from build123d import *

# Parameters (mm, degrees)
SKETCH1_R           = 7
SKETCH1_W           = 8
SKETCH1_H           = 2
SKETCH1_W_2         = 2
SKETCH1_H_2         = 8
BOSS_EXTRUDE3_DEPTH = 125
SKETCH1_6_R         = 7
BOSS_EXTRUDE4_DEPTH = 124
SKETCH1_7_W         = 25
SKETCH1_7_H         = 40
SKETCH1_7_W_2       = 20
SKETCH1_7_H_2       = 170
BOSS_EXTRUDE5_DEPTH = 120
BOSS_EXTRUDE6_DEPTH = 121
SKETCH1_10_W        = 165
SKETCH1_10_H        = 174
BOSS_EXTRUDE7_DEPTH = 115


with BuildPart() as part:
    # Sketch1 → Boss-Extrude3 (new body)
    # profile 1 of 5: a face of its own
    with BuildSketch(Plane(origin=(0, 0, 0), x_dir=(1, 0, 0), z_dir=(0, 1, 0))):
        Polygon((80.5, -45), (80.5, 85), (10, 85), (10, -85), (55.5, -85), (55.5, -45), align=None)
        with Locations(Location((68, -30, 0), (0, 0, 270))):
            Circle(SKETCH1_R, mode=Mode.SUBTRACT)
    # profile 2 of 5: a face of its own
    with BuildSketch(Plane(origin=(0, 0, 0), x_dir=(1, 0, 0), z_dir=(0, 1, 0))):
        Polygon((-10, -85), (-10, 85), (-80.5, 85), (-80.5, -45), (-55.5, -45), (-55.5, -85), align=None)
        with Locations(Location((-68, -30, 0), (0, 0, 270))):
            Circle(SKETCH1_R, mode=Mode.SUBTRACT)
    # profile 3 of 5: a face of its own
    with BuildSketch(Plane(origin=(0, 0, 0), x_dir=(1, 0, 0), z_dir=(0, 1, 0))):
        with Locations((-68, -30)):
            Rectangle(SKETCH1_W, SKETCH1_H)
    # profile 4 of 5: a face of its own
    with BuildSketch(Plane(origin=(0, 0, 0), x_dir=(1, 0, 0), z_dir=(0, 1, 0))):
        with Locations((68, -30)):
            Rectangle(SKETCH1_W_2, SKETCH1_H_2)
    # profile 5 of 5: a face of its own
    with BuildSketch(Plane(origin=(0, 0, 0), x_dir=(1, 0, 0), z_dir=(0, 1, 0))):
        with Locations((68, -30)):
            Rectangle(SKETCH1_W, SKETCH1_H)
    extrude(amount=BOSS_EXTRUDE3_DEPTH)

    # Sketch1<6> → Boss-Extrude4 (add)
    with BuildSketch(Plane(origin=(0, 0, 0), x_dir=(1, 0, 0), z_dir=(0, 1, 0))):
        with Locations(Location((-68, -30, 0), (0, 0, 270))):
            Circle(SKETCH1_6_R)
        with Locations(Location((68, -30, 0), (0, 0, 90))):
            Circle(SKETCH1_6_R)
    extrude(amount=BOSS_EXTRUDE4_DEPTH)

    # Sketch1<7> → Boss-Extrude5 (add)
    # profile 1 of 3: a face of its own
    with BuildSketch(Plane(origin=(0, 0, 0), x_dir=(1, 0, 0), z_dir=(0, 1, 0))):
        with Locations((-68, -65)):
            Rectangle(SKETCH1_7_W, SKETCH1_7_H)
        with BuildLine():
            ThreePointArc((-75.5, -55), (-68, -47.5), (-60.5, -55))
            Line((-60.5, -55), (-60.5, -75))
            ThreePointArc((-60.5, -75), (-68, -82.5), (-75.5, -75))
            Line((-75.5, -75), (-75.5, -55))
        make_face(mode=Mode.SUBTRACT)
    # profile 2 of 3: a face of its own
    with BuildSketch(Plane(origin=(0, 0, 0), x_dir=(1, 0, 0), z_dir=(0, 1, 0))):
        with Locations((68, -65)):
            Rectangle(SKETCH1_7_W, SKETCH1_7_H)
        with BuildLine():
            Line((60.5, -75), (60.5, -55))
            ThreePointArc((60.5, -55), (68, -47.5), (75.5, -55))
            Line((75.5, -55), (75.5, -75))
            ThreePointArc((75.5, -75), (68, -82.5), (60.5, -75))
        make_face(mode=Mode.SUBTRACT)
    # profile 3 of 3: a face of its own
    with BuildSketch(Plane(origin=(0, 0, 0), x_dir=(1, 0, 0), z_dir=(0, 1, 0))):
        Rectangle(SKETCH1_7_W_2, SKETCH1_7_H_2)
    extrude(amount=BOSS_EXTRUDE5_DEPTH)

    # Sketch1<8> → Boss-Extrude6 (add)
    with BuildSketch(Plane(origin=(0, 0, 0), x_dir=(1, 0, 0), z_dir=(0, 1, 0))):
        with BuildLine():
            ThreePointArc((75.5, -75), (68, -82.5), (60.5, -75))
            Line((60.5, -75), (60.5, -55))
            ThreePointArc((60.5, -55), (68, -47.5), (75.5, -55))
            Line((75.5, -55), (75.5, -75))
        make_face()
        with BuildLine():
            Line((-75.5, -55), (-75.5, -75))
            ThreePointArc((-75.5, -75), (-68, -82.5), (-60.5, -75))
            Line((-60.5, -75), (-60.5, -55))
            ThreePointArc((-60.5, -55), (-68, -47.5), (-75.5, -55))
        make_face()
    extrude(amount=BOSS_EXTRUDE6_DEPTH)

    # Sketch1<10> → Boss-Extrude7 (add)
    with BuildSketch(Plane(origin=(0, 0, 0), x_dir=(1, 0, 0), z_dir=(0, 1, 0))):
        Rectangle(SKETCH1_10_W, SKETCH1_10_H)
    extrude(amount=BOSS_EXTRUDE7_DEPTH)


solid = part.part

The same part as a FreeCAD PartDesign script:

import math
import FreeCAD as App
import Part
import Sketcher

doc = App.newDocument("Part")
body = doc.addObject("PartDesign::Body", "Body")
body.AllowCompound = True

sketch1 = body.newObject("Sketcher::SketchObject", "Sketch")
sketch1.AttachmentSupport = (doc.getObject("XZ_Plane"), [""])
sketch1.MapMode = "FlatFace"
sketch1.addGeometry(Part.LineSegment(App.Vector(80.5, 45, 0), App.Vector(80.5, -85, 0)), False)
sketch1.addGeometry(Part.LineSegment(App.Vector(80.5, -85, 0), App.Vector(10, -85, 0)), False)
sketch1.addGeometry(Part.LineSegment(App.Vector(10, -85, 0), App.Vector(10, 85, 0)), False)
sketch1.addGeometry(Part.LineSegment(App.Vector(10, 85, 0), App.Vector(55.5, 85, 0)), False)
sketch1.addGeometry(Part.LineSegment(App.Vector(55.5, 85, 0), App.Vector(55.5, 45, 0)), False)
sketch1.addGeometry(Part.LineSegment(App.Vector(55.5, 45, 0), App.Vector(80.5, 45, 0)), False)
sketch1.addGeometry(Part.Circle(App.Vector(68, 30, 0), App.Vector(0, 0, 1), 7), False)
sketch1.addGeometry(Part.LineSegment(App.Vector(-10, 85, 0), App.Vector(-10, -85, 0)), False)
sketch1.addGeometry(Part.LineSegment(App.Vector(-10, -85, 0), App.Vector(-80.5, -85, 0)), False)
sketch1.addGeometry(Part.LineSegment(App.Vector(-80.5, -85, 0), App.Vector(-80.5, 45, 0)), False)
sketch1.addGeometry(Part.LineSegment(App.Vector(-80.5, 45, 0), App.Vector(-55.5, 45, 0)), False)
sketch1.addGeometry(Part.LineSegment(App.Vector(-55.5, 45, 0), App.Vector(-55.5, 85, 0)), False)
sketch1.addGeometry(Part.LineSegment(App.Vector(-55.5, 85, 0), App.Vector(-10, 85, 0)), False)
sketch1.addGeometry(Part.Circle(App.Vector(-68, 30, 0), App.Vector(0, 0, 1), 7), False)
sketch1.addGeometry(Part.LineSegment(App.Vector(-72, 29, 0), App.Vector(-72, 31, 0)), False)
sketch1.addGeometry(Part.LineSegment(App.Vector(-72, 31, 0), App.Vector(-64, 31, 0)), False)
sketch1.addGeometry(Part.LineSegment(App.Vector(-64, 31, 0), App.Vector(-64, 29, 0)), False)
sketch1.addGeometry(Part.LineSegment(App.Vector(-64, 29, 0), App.Vector(-72, 29, 0)), False)
sketch1.addGeometry(Part.LineSegment(App.Vector(67, 31, 0), App.Vector(67, 34, 0)), False)
sketch1.addGeometry(Part.LineSegment(App.Vector(67, 34, 0), App.Vector(69, 34, 0)), False)
sketch1.addGeometry(Part.LineSegment(App.Vector(69, 34, 0), App.Vector(69, 31, 0)), False)
sketch1.addGeometry(Part.LineSegment(App.Vector(69, 31, 0), App.Vector(72, 31, 0)), False)
sketch1.addGeometry(Part.LineSegment(App.Vector(72, 31, 0), App.Vector(72, 29, 0)), False)
sketch1.addGeometry(Part.LineSegment(App.Vector(72, 29, 0), App.Vector(69, 29, 0)), False)
sketch1.addGeometry(Part.LineSegment(App.Vector(69, 29, 0), App.Vector(69, 26, 0)), False)
sketch1.addGeometry(Part.LineSegment(App.Vector(69, 26, 0), App.Vector(67, 26, 0)), False)
sketch1.addGeometry(Part.LineSegment(App.Vector(67, 26, 0), App.Vector(67, 29, 0)), False)
sketch1.addGeometry(Part.LineSegment(App.Vector(67, 29, 0), App.Vector(64, 29, 0)), False)
sketch1.addGeometry(Part.LineSegment(App.Vector(64, 29, 0), App.Vector(64, 31, 0)), False)
sketch1.addGeometry(Part.LineSegment(App.Vector(64, 31, 0), App.Vector(67, 31, 0)), False)
sketch1.addConstraint(Sketcher.Constraint("Coincident", 0, 2, 1, 1))
sketch1.addConstraint(Sketcher.Constraint("Coincident", 1, 2, 2, 1))
sketch1.addConstraint(Sketcher.Constraint("Coincident", 2, 2, 3, 1))
sketch1.addConstraint(Sketcher.Constraint("Coincident", 3, 2, 4, 1))
sketch1.addConstraint(Sketcher.Constraint("Coincident", 4, 2, 5, 1))
sketch1.addConstraint(Sketcher.Constraint("Coincident", 5, 2, 0, 1))
sketch1.addConstraint(Sketcher.Constraint("Coincident", 7, 2, 8, 1))
sketch1.addConstraint(Sketcher.Constraint("Coincident", 8, 2, 9, 1))
sketch1.addConstraint(Sketcher.Constraint("Coincident", 9, 2, 10, 1))
sketch1.addConstraint(Sketcher.Constraint("Coincident", 10, 2, 11, 1))
sketch1.addConstraint(Sketcher.Constraint("Coincident", 11, 2, 12, 1))
sketch1.addConstraint(Sketcher.Constraint("Coincident", 12, 2, 7, 1))
sketch1.addConstraint(Sketcher.Constraint("Coincident", 14, 2, 15, 1))
sketch1.addConstraint(Sketcher.Constraint("Coincident", 15, 2, 16, 1))
sketch1.addConstraint(Sketcher.Constraint("Coincident", 16, 2, 17, 1))
sketch1.addConstraint(Sketcher.Constraint("Coincident", 17, 2, 14, 1))
sketch1.addConstraint(Sketcher.Constraint("Coincident", 18, 2, 19, 1))
sketch1.addConstraint(Sketcher.Constraint("Coincident", 19, 2, 20, 1))
sketch1.addConstraint(Sketcher.Constraint("Coincident", 20, 2, 21, 1))
sketch1.addConstraint(Sketcher.Constraint("Coincident", 21, 2, 22, 1))
sketch1.addConstraint(Sketcher.Constraint("Coincident", 22, 2, 23, 1))
sketch1.addConstraint(Sketcher.Constraint("Coincident", 23, 2, 24, 1))
sketch1.addConstraint(Sketcher.Constraint("Coincident", 24, 2, 25, 1))
sketch1.addConstraint(Sketcher.Constraint("Coincident", 25, 2, 26, 1))
sketch1.addConstraint(Sketcher.Constraint("Coincident", 26, 2, 27, 1))
sketch1.addConstraint(Sketcher.Constraint("Coincident", 27, 2, 28, 1))
sketch1.addConstraint(Sketcher.Constraint("Coincident", 28, 2, 29, 1))
sketch1.addConstraint(Sketcher.Constraint("Coincident", 29, 2, 18, 1))
sketch1.addConstraint(Sketcher.Constraint("Vertical", 0))
sketch1.addConstraint(Sketcher.Constraint("Horizontal", 1))
sketch1.addConstraint(Sketcher.Constraint("Vertical", 2))
sketch1.addConstraint(Sketcher.Constraint("Horizontal", 3))
sketch1.addConstraint(Sketcher.Constraint("Vertical", 4))
sketch1.addConstraint(Sketcher.Constraint("Horizontal", 5))
sketch1.addConstraint(Sketcher.Constraint("Vertical", 7))
sketch1.addConstraint(Sketcher.Constraint("Horizontal", 8))
sketch1.addConstraint(Sketcher.Constraint("Vertical", 9))
sketch1.addConstraint(Sketcher.Constraint("Horizontal", 10))
sketch1.addConstraint(Sketcher.Constraint("Vertical", 11))
sketch1.addConstraint(Sketcher.Constraint("Horizontal", 12))
sketch1.addConstraint(Sketcher.Constraint("Vertical", 14))
sketch1.addConstraint(Sketcher.Constraint("Horizontal", 15))
sketch1.addConstraint(Sketcher.Constraint("Vertical", 16))
sketch1.addConstraint(Sketcher.Constraint("Horizontal", 17))
sketch1.addConstraint(Sketcher.Constraint("Vertical", 18))
sketch1.addConstraint(Sketcher.Constraint("Horizontal", 19))
sketch1.addConstraint(Sketcher.Constraint("Vertical", 20))
sketch1.addConstraint(Sketcher.Constraint("Horizontal", 21))
sketch1.addConstraint(Sketcher.Constraint("Vertical", 22))
sketch1.addConstraint(Sketcher.Constraint("Horizontal", 23))
sketch1.addConstraint(Sketcher.Constraint("Vertical", 24))
sketch1.addConstraint(Sketcher.Constraint("Horizontal", 25))
sketch1.addConstraint(Sketcher.Constraint("Vertical", 26))
sketch1.addConstraint(Sketcher.Constraint("Horizontal", 27))
sketch1.addConstraint(Sketcher.Constraint("Vertical", 28))
sketch1.addConstraint(Sketcher.Constraint("Horizontal", 29))
sketch1.addConstraint(Sketcher.Constraint("Equal", 6, 13))
sketch1.addConstraint(Sketcher.Constraint("Symmetric", 2, 2, 7, 2, -1, 1))
sketch1.addConstraint(Sketcher.Constraint("Symmetric", 6, 3, 13, 3, -2))
sketch1.addConstraint(Sketcher.Constraint("Symmetric", 0, 2, 8, 2, -2))
sketch1.addConstraint(Sketcher.Constraint("Symmetric", 4, 2, 10, 2, -2))
sketch1.addConstraint(Sketcher.Constraint("Symmetric", 14, 2, 21, 2, -2))
sketch1.addConstraint(Sketcher.Constraint("Symmetric", 16, 2, 27, 2, -2))
sketch1.addConstraint(Sketcher.Constraint("Horizontal", 3, 2, 11, 2))
sketch1.addConstraint(Sketcher.Constraint("Horizontal", 17, 2, 22, 2))
sketch1.addConstraint(Sketcher.Constraint("Horizontal", 21, 2, 28, 2))
sketch1.addConstraint(Sketcher.Constraint("Vertical", 20, 2, 23, 2))
sketch1.addConstraint(Sketcher.Constraint("Vertical", 18, 2, 25, 2))
sketch1.addConstraint(Sketcher.Constraint("Equal", 23, 27))
sketch1.addConstraint(Sketcher.Constraint("Equal", 25, 14))
sketch1.addConstraint(Sketcher.Constraint("Equal", 29, 18))
sketch1.addConstraint(Sketcher.Constraint("Equal", 20, 24))
sketch1.addConstraint(Sketcher.Constraint("Diameter", 6, 14.0))
sketch1.addConstraint(Sketcher.Constraint("DistanceX", 5, 1, 5, 2, 25.0))
sketch1.addConstraint(Sketcher.Constraint("DistanceX", 15, 1, 15, 2, 8.0))
sketch1.addConstraint(Sketcher.Constraint("DistanceX", 19, 1, 19, 2, 2.0))
sketch1.addConstraint(Sketcher.Constraint("DistanceY", 0, 2, 0, 1, 130.0))
sketch1.addConstraint(Sketcher.Constraint("DistanceY", 2, 1, 2, 2, 170.0))
sketch1.addConstraint(Sketcher.Constraint("DistanceX", 1, 2, 1, 1, 70.5))
sketch1.addConstraint(Sketcher.Constraint("DistanceX", -1, 1, 6, 3, 68.0))
sketch1.addConstraint(Sketcher.Constraint("DistanceY", -1, 1, 6, 3, 30.0))
sketch1.addConstraint(Sketcher.Constraint("DistanceX", -1, 1, 1, 2, 10.0))
sketch1.addConstraint(Sketcher.Constraint("DistanceX", 14, 2, -1, 1, 72.0))
sketch1.addConstraint(Sketcher.Constraint("DistanceY", -1, 1, 14, 2, 31.0))
pad1 = body.newObject("PartDesign::Pad", "Pad")
pad1.Profile = sketch1
pad1.Length = 125
pad1.Reversed = True

sketch2 = body.newObject("Sketcher::SketchObject", "Sketch001")
sketch2.AttachmentSupport = (doc.getObject("XZ_Plane"), [""])
sketch2.MapMode = "FlatFace"
sketch2.addGeometry(Part.Circle(App.Vector(-68, 30, 0), App.Vector(0, 0, 1), 7), False)
sketch2.addGeometry(Part.Circle(App.Vector(68, 30, 0), App.Vector(0, 0, 1), 7), False)
sketch2.addConstraint(Sketcher.Constraint("Equal", 0, 1))
sketch2.addConstraint(Sketcher.Constraint("Symmetric", 0, 3, 1, 3, -2))
sketch2.addConstraint(Sketcher.Constraint("Diameter", 0, 14.0))
sketch2.addConstraint(Sketcher.Constraint("DistanceX", 0, 3, -1, 1, 68.0))
sketch2.addConstraint(Sketcher.Constraint("DistanceY", -1, 1, 0, 3, 30.0))
pad2 = body.newObject("PartDesign::Pad", "Pad001")
pad2.Profile = sketch2
pad2.Length = 124
pad2.Reversed = True

sketch3 = body.newObject("Sketcher::SketchObject", "Sketch002")
sketch3.AttachmentSupport = (doc.getObject("XZ_Plane"), [""])
sketch3.MapMode = "FlatFace"
sketch3.addGeometry(Part.LineSegment(App.Vector(-80, 45, 0), App.Vector(-80, 85, 0)), False)
sketch3.addGeometry(Part.LineSegment(App.Vector(-80, 85, 0), App.Vector(-56, 85, 0)), False)
sketch3.addGeometry(Part.LineSegment(App.Vector(-56, 85, 0), App.Vector(-56, 45, 0)), False)
sketch3.addGeometry(Part.LineSegment(App.Vector(-56, 45, 0), App.Vector(-80, 45, 0)), False)
sketch3.addGeometry(Part.LineSegment(App.Vector(-76, 75, 0), App.Vector(-76, 55, 0)), False)
sketch3.addGeometry(Part.ArcOfCircle(Part.Circle(App.Vector(-68, 55, 0), App.Vector(0, 0, 1), 8), math.radians(180), math.radians(360)), False)
sketch3.addGeometry(Part.LineSegment(App.Vector(-60, 55, 0), App.Vector(-60, 75, 0)), False)
sketch3.addGeometry(Part.ArcOfCircle(Part.Circle(App.Vector(-68, 75, 0), App.Vector(0, 0, 1), 8), math.radians(0), math.radians(180)), False)
sketch3.addGeometry(Part.LineSegment(App.Vector(56, 45, 0), App.Vector(56, 85, 0)), False)
sketch3.addGeometry(Part.LineSegment(App.Vector(56, 85, 0), App.Vector(80, 85, 0)), False)
sketch3.addGeometry(Part.LineSegment(App.Vector(80, 85, 0), App.Vector(80, 45, 0)), False)
sketch3.addGeometry(Part.LineSegment(App.Vector(80, 45, 0), App.Vector(56, 45, 0)), False)
sketch3.addGeometry(Part.ArcOfCircle(Part.Circle(App.Vector(68, 75, 0), App.Vector(0, 0, 1), 8), math.radians(0), math.radians(180)), False)
sketch3.addGeometry(Part.LineSegment(App.Vector(60, 75, 0), App.Vector(60, 55, 0)), False)
sketch3.addGeometry(Part.ArcOfCircle(Part.Circle(App.Vector(68, 55, 0), App.Vector(0, 0, 1), 8), math.radians(180), math.radians(360)), False)
sketch3.addGeometry(Part.LineSegment(App.Vector(76, 55, 0), App.Vector(76, 75, 0)), False)
sketch3.addGeometry(Part.LineSegment(App.Vector(-10, -85, 0), App.Vector(-10, 85, 0)), False)
sketch3.addGeometry(Part.LineSegment(App.Vector(-10, 85, 0), App.Vector(10, 85, 0)), False)
sketch3.addGeometry(Part.LineSegment(App.Vector(10, 85, 0), App.Vector(10, -85, 0)), False)
sketch3.addGeometry(Part.LineSegment(App.Vector(10, -85, 0), App.Vector(-10, -85, 0)), False)
sketch3.addConstraint(Sketcher.Constraint("Coincident", 0, 2, 1, 1))
sketch3.addConstraint(Sketcher.Constraint("Coincident", 1, 2, 2, 1))
sketch3.addConstraint(Sketcher.Constraint("Coincident", 2, 2, 3, 1))
sketch3.addConstraint(Sketcher.Constraint("Coincident", 3, 2, 0, 1))
sketch3.addConstraint(Sketcher.Constraint("Tangent", 4, 2, 5, 1))
sketch3.addConstraint(Sketcher.Constraint("Tangent", 5, 2, 6, 1))
sketch3.addConstraint(Sketcher.Constraint("Tangent", 6, 2, 7, 1))
sketch3.addConstraint(Sketcher.Constraint("Tangent", 7, 2, 4, 1))
sketch3.addConstraint(Sketcher.Constraint("Coincident", 8, 2, 9, 1))
sketch3.addConstraint(Sketcher.Constraint("Coincident", 9, 2, 10, 1))
sketch3.addConstraint(Sketcher.Constraint("Coincident", 10, 2, 11, 1))
sketch3.addConstraint(Sketcher.Constraint("Coincident", 11, 2, 8, 1))
sketch3.addConstraint(Sketcher.Constraint("Tangent", 12, 2, 13, 1))
sketch3.addConstraint(Sketcher.Constraint("Tangent", 13, 2, 14, 1))
sketch3.addConstraint(Sketcher.Constraint("Tangent", 14, 2, 15, 1))
sketch3.addConstraint(Sketcher.Constraint("Tangent", 15, 2, 12, 1))
sketch3.addConstraint(Sketcher.Constraint("Coincident", 16, 2, 17, 1))
sketch3.addConstraint(Sketcher.Constraint("Coincident", 17, 2, 18, 1))
sketch3.addConstraint(Sketcher.Constraint("Coincident", 18, 2, 19, 1))
sketch3.addConstraint(Sketcher.Constraint("Coincident", 19, 2, 16, 1))
sketch3.addConstraint(Sketcher.Constraint("Vertical", 0))
sketch3.addConstraint(Sketcher.Constraint("Horizontal", 1))
sketch3.addConstraint(Sketcher.Constraint("Vertical", 2))
sketch3.addConstraint(Sketcher.Constraint("Horizontal", 3))
sketch3.addConstraint(Sketcher.Constraint("Vertical", 4))
sketch3.addConstraint(Sketcher.Constraint("Vertical", 6))
sketch3.addConstraint(Sketcher.Constraint("Vertical", 8))
sketch3.addConstraint(Sketcher.Constraint("Horizontal", 9))
sketch3.addConstraint(Sketcher.Constraint("Vertical", 10))
sketch3.addConstraint(Sketcher.Constraint("Horizontal", 11))
sketch3.addConstraint(Sketcher.Constraint("Vertical", 13))
sketch3.addConstraint(Sketcher.Constraint("Vertical", 15))
sketch3.addConstraint(Sketcher.Constraint("Vertical", 16))
sketch3.addConstraint(Sketcher.Constraint("Horizontal", 17))
sketch3.addConstraint(Sketcher.Constraint("Vertical", 18))
sketch3.addConstraint(Sketcher.Constraint("Horizontal", 19))
sketch3.addConstraint(Sketcher.Constraint("Equal", 7, 12))
sketch3.addConstraint(Sketcher.Constraint("Symmetric", 16, 2, 18, 2, -1, 1))
sketch3.addConstraint(Sketcher.Constraint("Symmetric", 7, 3, 12, 3, -2))
sketch3.addConstraint(Sketcher.Constraint("Symmetric", 1, 2, 8, 2, -2))
sketch3.addConstraint(Sketcher.Constraint("Symmetric", 3, 2, 10, 2, -2))
sketch3.addConstraint(Sketcher.Constraint("Horizontal", 5, 3, 14, 3))
sketch3.addConstraint(Sketcher.Constraint("Horizontal", 9, 2, 16, 2))
sketch3.addConstraint(Sketcher.Constraint("Equal", 19, 4))
sketch3.addConstraint(Sketcher.Constraint("Radius", 5, 7.5))
sketch3.addConstraint(Sketcher.Constraint("DistanceX", 1, 1, 1, 2, 25.0))
sketch3.addConstraint(Sketcher.Constraint("DistanceX", 17, 1, 17, 2, 20.0))
sketch3.addConstraint(Sketcher.Constraint("DistanceY", 0, 1, 0, 2, 40.0))
sketch3.addConstraint(Sketcher.Constraint("DistanceY", 16, 1, 16, 2, 170.0))
sketch3.addConstraint(Sketcher.Constraint("DistanceX", 5, 3, -1, 1, 68.0))
sketch3.addConstraint(Sketcher.Constraint("DistanceY", -1, 1, 5, 3, 55.0))
sketch3.addConstraint(Sketcher.Constraint("DistanceX", 3, 2, 4, 2, 5.0))
pad3 = body.newObject("PartDesign::Pad", "Pad002")
pad3.Profile = sketch3
pad3.Length = 120
pad3.Reversed = True

sketch4 = body.newObject("Sketcher::SketchObject", "Sketch003")
sketch4.AttachmentSupport = (doc.getObject("XZ_Plane"), [""])
sketch4.MapMode = "FlatFace"
sketch4.addGeometry(Part.ArcOfCircle(Part.Circle(App.Vector(68, 75, 0), App.Vector(0, 0, 1), 8), math.radians(0), math.radians(180)), False)
sketch4.addGeometry(Part.LineSegment(App.Vector(76, 75, 0), App.Vector(76, 55, 0)), False)
sketch4.addGeometry(Part.ArcOfCircle(Part.Circle(App.Vector(68, 55, 0), App.Vector(0, 0, 1), 8), math.radians(180), math.radians(360)), False)
sketch4.addGeometry(Part.LineSegment(App.Vector(60, 55, 0), App.Vector(60, 75, 0)), False)
sketch4.addGeometry(Part.LineSegment(App.Vector(-76, 55, 0), App.Vector(-76, 75, 0)), False)
sketch4.addGeometry(Part.ArcOfCircle(Part.Circle(App.Vector(-68, 75, 0), App.Vector(0, 0, 1), 8), math.radians(0), math.radians(180)), False)
sketch4.addGeometry(Part.LineSegment(App.Vector(-60, 75, 0), App.Vector(-60, 55, 0)), False)
sketch4.addGeometry(Part.ArcOfCircle(Part.Circle(App.Vector(-68, 55, 0), App.Vector(0, 0, 1), 8), math.radians(180), math.radians(360)), False)
sketch4.addConstraint(Sketcher.Constraint("Tangent", 0, 1, 1, 1))
sketch4.addConstraint(Sketcher.Constraint("Tangent", 1, 2, 2, 2))
sketch4.addConstraint(Sketcher.Constraint("Tangent", 2, 1, 3, 1))
sketch4.addConstraint(Sketcher.Constraint("Tangent", 3, 2, 0, 2))
sketch4.addConstraint(Sketcher.Constraint("Tangent", 4, 2, 5, 2))
sketch4.addConstraint(Sketcher.Constraint("Tangent", 5, 1, 6, 1))
sketch4.addConstraint(Sketcher.Constraint("Tangent", 6, 2, 7, 2))
sketch4.addConstraint(Sketcher.Constraint("Tangent", 7, 1, 4, 1))
sketch4.addConstraint(Sketcher.Constraint("Vertical", 1))
sketch4.addConstraint(Sketcher.Constraint("Vertical", 3))
sketch4.addConstraint(Sketcher.Constraint("Vertical", 4))
sketch4.addConstraint(Sketcher.Constraint("Vertical", 6))
sketch4.addConstraint(Sketcher.Constraint("Equal", 2, 5))
sketch4.addConstraint(Sketcher.Constraint("Symmetric", 0, 3, 5, 3, -2))
sketch4.addConstraint(Sketcher.Constraint("Horizontal", 2, 3, 7, 3))
sketch4.addConstraint(Sketcher.Constraint("Radius", 0, 7.5))
sketch4.addConstraint(Sketcher.Constraint("DistanceY", 1, 2, 1, 1, 20.0))
sketch4.addConstraint(Sketcher.Constraint("DistanceX", -1, 1, 0, 3, 68.0))
sketch4.addConstraint(Sketcher.Constraint("DistanceY", -1, 1, 0, 3, 75.0))
pad4 = body.newObject("PartDesign::Pad", "Pad003")
pad4.Profile = sketch4
pad4.Length = 121
pad4.Reversed = True

sketch5 = body.newObject("Sketcher::SketchObject", "Sketch004")
sketch5.AttachmentSupport = (doc.getObject("XZ_Plane"), [""])
sketch5.MapMode = "FlatFace"
sketch5.addGeometry(Part.LineSegment(App.Vector(-82, -87, 0), App.Vector(-82, 87, 0)), False)
sketch5.addGeometry(Part.LineSegment(App.Vector(-82, 87, 0), App.Vector(82, 87, 0)), False)
sketch5.addGeometry(Part.LineSegment(App.Vector(82, 87, 0), App.Vector(82, -87, 0)), False)
sketch5.addGeometry(Part.LineSegment(App.Vector(82, -87, 0), App.Vector(-82, -87, 0)), False)
sketch5.addConstraint(Sketcher.Constraint("Coincident", 0, 2, 1, 1))
sketch5.addConstraint(Sketcher.Constraint("Coincident", 1, 2, 2, 1))
sketch5.addConstraint(Sketcher.Constraint("Coincident", 2, 2, 3, 1))
sketch5.addConstraint(Sketcher.Constraint("Coincident", 3, 2, 0, 1))
sketch5.addConstraint(Sketcher.Constraint("Vertical", 0))
sketch5.addConstraint(Sketcher.Constraint("Horizontal", 1))
sketch5.addConstraint(Sketcher.Constraint("Vertical", 2))
sketch5.addConstraint(Sketcher.Constraint("Horizontal", 3))
sketch5.addConstraint(Sketcher.Constraint("Symmetric", 0, 2, 2, 2, -1, 1))
sketch5.addConstraint(Sketcher.Constraint("DistanceX", 1, 1, 1, 2, 165.0))
sketch5.addConstraint(Sketcher.Constraint("DistanceY", 0, 1, 0, 2, 174.0))
pad5 = body.newObject("PartDesign::Pad", "Pad004")
pad5.Profile = sketch5
pad5.Length = 115
pad5.Reversed = True

doc.recompute()
